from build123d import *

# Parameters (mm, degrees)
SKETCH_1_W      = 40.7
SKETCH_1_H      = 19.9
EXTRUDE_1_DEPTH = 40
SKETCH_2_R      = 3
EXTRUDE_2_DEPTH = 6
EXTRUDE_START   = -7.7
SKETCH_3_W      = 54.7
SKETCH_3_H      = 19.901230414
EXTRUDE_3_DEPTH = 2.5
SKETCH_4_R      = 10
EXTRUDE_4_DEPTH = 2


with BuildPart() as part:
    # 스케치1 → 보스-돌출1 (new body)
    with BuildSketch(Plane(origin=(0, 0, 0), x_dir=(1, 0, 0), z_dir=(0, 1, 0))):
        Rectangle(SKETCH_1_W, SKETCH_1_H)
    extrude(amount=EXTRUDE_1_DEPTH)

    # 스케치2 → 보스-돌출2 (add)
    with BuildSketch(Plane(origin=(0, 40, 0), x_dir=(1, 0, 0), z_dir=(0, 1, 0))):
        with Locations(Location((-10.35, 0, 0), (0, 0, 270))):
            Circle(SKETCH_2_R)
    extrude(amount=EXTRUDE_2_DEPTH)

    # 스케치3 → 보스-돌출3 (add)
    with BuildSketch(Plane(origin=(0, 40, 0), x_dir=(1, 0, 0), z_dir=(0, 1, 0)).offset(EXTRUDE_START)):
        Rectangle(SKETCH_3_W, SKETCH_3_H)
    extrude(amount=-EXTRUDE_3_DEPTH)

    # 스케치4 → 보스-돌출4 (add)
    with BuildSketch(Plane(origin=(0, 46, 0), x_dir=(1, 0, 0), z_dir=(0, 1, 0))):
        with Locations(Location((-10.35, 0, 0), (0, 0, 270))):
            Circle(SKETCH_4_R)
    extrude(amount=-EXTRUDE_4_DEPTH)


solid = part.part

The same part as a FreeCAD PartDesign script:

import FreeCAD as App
import Part
import Sketcher
from FreeCAD import Vector
Q = App.Units.Quantity

doc = App.newDocument("Part")
params = doc.addObject("Spreadsheet::Sheet", "Params")
for row, (alias, value) in enumerate([
    ("sketch1_width", "40.7 mm"),
    ("sketch1_height", "19.9 mm"),
    ("pad1_length", "40 mm"),
    ("sketch2_diameter", "6 mm"),
    ("pad2_length", "6 mm"),
    ("sketch3_width", "54.7 mm"),
    ("pad3_length", "2.5 mm"),
    ("sketch4_diameter", "20 mm"),
    ("pad4_length", "2 mm"),
], start=1):
    params.set(f"A{row}", alias)
    params.set(f"B{row}", "=" + value)
    params.setAlias(f"B{row}", alias)

body = doc.addObject("PartDesign::Body", "Body")

sketch1 = body.newObject("Sketcher::SketchObject", "Sketch")
sketch1.AttachmentSupport = (doc.getObject("XZ_Plane"), [""])
sketch1.MapMode = "FlatFace"
sketch1.addGeometry([
    Part.LineSegment(Vector(-20, -10, 0), Vector(-20, 10, 0)),
    Part.LineSegment(Vector(-20, 10, 0), Vector(20, 10, 0)),
    Part.LineSegment(Vector(20, 10, 0), Vector(20, -10, 0)),
    Part.LineSegment(Vector(20, -10, 0), Vector(-20, -10, 0)),
], False)
sketch1.addConstraint([
    Sketcher.Constraint("Coincident", 0, 2, 1, 1),
    Sketcher.Constraint("Coincident", 1, 2, 2, 1),
    Sketcher.Constraint("Coincident", 2, 2, 3, 1),
    Sketcher.Constraint("Coincident", 3, 2, 0, 1),
    Sketcher.Constraint("Vertical", 0),
    Sketcher.Constraint("Horizontal", 1),
    Sketcher.Constraint("Vertical", 2),
    Sketcher.Constraint("Horizontal", 3),
    Sketcher.Constraint("Symmetric", 0, 2, 2, 2, -1, 1),
    Sketcher.Constraint("DistanceX", 1, 1, 1, 2, Q("40.7 mm")),
    Sketcher.Constraint("DistanceY", 0, 1, 0, 2, Q("19.9 mm")),
])
sketch1.setExpression("Constraints[9]", "Params.sketch1_width")
sketch1.setExpression("Constraints[10]", "Params.sketch1_height")
pad1 = body.newObject("PartDesign::Pad", "Pad")
pad1.Profile = sketch1
pad1.setExpression("Length", "Params.pad1_length")
pad1.Reversed = True

sketch2 = body.newObject("Sketcher::SketchObject", "Sketch001")
sketch2.AttachmentSupport = (doc.getObject("XZ_Plane"), [""])
sketch2.MapMode = "FlatFace"
sketch2.AttachmentOffset = App.Placement(Vector(0, 0, -40), App.Rotation())
sketch2.addGeometry(Part.Circle(Vector(-10.3, 0, 0), Vector(0, 0, 1), 3), False)
sketch2.addConstraint([
    Sketcher.Constraint("PointOnObject", 0, 3, -1),
    Sketcher.Constraint("Diameter", 0, Q("6 mm")),
    Sketcher.Constraint("DistanceX", 0, 3, -1, 1, Q("10.35 mm")),
])
sketch2.setExpression("Constraints[1]", "Params.sketch2_diameter")
pad2 = body.newObject("PartDesign::Pad", "Pad001")
pad2.Profile = sketch2
pad2.setExpression("Length", "Params.pad2_length")
pad2.Reversed = True

sketch3 = body.newObject("Sketcher::SketchObject", "Sketch002")
sketch3.AttachmentSupport = (doc.getObject("XZ_Plane"), [""])
sketch3.MapMode = "FlatFace"
sketch3.AttachmentOffset = App.Placement(Vector(0, 0, -32.3), App.Rotation())
sketch3.addGeometry([
    Part.LineSegment(Vector(-27, -10, 0), Vector(-27, 10, 0)),
    Part.LineSegment(Vector(-27, 10, 0), Vector(27, 10, 0)),
    Part.LineSegment(Vector(27, 10, 0), Vector(27, -10, 0)),
    Part.LineSegment(Vector(27, -10, 0), Vector(-27, -10, 0)),
], False)
sketch3.addConstraint([
    Sketcher.Constraint("Coincident", 0, 2, 1, 1),
    Sketcher.Constraint("Coincident", 1, 2, 2, 1),
    Sketcher.Constraint("Coincident", 2, 2, 3, 1),
    Sketcher.Constraint("Coincident", 3, 2, 0, 1),
    Sketcher.Constraint("Vertical", 0),
    Sketcher.Constraint("Horizontal", 1),
    Sketcher.Constraint("Vertical", 2),
    Sketcher.Constraint("Horizontal", 3),
    Sketcher.Constraint("Symmetric", 0, 2, 2, 2, -1, 1),
    Sketcher.Constraint("DistanceX", 1, 1, 1, 2, Q("54.7 mm")),
    Sketcher.Constraint("DistanceY", 0, 1, 0, 2, Q("19.90123 mm")),
])
sketch3.setExpression("Constraints[9]", "Params.sketch3_width")
pad3 = body.newObject("PartDesign::Pad", "Pad002")
pad3.Profile = sketch3
pad3.setExpression("Length", "Params.pad3_length")

sketch4 = body.newObject("Sketcher::SketchObject", "Sketch003")
sketch4.AttachmentSupport = (doc.getObject("XZ_Plane"), [""])
sketch4.MapMode = "FlatFace"
sketch4.AttachmentOffset = App.Placement(Vector(0, 0, -46), App.Rotation())
sketch4.addGeometry(Part.Circle(Vector(-10, 0, 0), Vector(0, 0, 1), 10), False)
sketch4.addConstraint([
    Sketcher.Constraint("PointOnObject", 0, 3, -1),
    Sketcher.Constraint("Diameter", 0, Q("20 mm")),
    Sketcher.Constraint("DistanceX", 0, 3, -1, 1, Q("10.35 mm")),
])
sketch4.setExpression("Constraints[1]", "Params.sketch4_diameter")
pad4 = body.newObject("PartDesign::Pad", "Pad003")
pad4.Profile = sketch4
pad4.setExpression("Length", "Params.pad4_length")

doc.recompute()
